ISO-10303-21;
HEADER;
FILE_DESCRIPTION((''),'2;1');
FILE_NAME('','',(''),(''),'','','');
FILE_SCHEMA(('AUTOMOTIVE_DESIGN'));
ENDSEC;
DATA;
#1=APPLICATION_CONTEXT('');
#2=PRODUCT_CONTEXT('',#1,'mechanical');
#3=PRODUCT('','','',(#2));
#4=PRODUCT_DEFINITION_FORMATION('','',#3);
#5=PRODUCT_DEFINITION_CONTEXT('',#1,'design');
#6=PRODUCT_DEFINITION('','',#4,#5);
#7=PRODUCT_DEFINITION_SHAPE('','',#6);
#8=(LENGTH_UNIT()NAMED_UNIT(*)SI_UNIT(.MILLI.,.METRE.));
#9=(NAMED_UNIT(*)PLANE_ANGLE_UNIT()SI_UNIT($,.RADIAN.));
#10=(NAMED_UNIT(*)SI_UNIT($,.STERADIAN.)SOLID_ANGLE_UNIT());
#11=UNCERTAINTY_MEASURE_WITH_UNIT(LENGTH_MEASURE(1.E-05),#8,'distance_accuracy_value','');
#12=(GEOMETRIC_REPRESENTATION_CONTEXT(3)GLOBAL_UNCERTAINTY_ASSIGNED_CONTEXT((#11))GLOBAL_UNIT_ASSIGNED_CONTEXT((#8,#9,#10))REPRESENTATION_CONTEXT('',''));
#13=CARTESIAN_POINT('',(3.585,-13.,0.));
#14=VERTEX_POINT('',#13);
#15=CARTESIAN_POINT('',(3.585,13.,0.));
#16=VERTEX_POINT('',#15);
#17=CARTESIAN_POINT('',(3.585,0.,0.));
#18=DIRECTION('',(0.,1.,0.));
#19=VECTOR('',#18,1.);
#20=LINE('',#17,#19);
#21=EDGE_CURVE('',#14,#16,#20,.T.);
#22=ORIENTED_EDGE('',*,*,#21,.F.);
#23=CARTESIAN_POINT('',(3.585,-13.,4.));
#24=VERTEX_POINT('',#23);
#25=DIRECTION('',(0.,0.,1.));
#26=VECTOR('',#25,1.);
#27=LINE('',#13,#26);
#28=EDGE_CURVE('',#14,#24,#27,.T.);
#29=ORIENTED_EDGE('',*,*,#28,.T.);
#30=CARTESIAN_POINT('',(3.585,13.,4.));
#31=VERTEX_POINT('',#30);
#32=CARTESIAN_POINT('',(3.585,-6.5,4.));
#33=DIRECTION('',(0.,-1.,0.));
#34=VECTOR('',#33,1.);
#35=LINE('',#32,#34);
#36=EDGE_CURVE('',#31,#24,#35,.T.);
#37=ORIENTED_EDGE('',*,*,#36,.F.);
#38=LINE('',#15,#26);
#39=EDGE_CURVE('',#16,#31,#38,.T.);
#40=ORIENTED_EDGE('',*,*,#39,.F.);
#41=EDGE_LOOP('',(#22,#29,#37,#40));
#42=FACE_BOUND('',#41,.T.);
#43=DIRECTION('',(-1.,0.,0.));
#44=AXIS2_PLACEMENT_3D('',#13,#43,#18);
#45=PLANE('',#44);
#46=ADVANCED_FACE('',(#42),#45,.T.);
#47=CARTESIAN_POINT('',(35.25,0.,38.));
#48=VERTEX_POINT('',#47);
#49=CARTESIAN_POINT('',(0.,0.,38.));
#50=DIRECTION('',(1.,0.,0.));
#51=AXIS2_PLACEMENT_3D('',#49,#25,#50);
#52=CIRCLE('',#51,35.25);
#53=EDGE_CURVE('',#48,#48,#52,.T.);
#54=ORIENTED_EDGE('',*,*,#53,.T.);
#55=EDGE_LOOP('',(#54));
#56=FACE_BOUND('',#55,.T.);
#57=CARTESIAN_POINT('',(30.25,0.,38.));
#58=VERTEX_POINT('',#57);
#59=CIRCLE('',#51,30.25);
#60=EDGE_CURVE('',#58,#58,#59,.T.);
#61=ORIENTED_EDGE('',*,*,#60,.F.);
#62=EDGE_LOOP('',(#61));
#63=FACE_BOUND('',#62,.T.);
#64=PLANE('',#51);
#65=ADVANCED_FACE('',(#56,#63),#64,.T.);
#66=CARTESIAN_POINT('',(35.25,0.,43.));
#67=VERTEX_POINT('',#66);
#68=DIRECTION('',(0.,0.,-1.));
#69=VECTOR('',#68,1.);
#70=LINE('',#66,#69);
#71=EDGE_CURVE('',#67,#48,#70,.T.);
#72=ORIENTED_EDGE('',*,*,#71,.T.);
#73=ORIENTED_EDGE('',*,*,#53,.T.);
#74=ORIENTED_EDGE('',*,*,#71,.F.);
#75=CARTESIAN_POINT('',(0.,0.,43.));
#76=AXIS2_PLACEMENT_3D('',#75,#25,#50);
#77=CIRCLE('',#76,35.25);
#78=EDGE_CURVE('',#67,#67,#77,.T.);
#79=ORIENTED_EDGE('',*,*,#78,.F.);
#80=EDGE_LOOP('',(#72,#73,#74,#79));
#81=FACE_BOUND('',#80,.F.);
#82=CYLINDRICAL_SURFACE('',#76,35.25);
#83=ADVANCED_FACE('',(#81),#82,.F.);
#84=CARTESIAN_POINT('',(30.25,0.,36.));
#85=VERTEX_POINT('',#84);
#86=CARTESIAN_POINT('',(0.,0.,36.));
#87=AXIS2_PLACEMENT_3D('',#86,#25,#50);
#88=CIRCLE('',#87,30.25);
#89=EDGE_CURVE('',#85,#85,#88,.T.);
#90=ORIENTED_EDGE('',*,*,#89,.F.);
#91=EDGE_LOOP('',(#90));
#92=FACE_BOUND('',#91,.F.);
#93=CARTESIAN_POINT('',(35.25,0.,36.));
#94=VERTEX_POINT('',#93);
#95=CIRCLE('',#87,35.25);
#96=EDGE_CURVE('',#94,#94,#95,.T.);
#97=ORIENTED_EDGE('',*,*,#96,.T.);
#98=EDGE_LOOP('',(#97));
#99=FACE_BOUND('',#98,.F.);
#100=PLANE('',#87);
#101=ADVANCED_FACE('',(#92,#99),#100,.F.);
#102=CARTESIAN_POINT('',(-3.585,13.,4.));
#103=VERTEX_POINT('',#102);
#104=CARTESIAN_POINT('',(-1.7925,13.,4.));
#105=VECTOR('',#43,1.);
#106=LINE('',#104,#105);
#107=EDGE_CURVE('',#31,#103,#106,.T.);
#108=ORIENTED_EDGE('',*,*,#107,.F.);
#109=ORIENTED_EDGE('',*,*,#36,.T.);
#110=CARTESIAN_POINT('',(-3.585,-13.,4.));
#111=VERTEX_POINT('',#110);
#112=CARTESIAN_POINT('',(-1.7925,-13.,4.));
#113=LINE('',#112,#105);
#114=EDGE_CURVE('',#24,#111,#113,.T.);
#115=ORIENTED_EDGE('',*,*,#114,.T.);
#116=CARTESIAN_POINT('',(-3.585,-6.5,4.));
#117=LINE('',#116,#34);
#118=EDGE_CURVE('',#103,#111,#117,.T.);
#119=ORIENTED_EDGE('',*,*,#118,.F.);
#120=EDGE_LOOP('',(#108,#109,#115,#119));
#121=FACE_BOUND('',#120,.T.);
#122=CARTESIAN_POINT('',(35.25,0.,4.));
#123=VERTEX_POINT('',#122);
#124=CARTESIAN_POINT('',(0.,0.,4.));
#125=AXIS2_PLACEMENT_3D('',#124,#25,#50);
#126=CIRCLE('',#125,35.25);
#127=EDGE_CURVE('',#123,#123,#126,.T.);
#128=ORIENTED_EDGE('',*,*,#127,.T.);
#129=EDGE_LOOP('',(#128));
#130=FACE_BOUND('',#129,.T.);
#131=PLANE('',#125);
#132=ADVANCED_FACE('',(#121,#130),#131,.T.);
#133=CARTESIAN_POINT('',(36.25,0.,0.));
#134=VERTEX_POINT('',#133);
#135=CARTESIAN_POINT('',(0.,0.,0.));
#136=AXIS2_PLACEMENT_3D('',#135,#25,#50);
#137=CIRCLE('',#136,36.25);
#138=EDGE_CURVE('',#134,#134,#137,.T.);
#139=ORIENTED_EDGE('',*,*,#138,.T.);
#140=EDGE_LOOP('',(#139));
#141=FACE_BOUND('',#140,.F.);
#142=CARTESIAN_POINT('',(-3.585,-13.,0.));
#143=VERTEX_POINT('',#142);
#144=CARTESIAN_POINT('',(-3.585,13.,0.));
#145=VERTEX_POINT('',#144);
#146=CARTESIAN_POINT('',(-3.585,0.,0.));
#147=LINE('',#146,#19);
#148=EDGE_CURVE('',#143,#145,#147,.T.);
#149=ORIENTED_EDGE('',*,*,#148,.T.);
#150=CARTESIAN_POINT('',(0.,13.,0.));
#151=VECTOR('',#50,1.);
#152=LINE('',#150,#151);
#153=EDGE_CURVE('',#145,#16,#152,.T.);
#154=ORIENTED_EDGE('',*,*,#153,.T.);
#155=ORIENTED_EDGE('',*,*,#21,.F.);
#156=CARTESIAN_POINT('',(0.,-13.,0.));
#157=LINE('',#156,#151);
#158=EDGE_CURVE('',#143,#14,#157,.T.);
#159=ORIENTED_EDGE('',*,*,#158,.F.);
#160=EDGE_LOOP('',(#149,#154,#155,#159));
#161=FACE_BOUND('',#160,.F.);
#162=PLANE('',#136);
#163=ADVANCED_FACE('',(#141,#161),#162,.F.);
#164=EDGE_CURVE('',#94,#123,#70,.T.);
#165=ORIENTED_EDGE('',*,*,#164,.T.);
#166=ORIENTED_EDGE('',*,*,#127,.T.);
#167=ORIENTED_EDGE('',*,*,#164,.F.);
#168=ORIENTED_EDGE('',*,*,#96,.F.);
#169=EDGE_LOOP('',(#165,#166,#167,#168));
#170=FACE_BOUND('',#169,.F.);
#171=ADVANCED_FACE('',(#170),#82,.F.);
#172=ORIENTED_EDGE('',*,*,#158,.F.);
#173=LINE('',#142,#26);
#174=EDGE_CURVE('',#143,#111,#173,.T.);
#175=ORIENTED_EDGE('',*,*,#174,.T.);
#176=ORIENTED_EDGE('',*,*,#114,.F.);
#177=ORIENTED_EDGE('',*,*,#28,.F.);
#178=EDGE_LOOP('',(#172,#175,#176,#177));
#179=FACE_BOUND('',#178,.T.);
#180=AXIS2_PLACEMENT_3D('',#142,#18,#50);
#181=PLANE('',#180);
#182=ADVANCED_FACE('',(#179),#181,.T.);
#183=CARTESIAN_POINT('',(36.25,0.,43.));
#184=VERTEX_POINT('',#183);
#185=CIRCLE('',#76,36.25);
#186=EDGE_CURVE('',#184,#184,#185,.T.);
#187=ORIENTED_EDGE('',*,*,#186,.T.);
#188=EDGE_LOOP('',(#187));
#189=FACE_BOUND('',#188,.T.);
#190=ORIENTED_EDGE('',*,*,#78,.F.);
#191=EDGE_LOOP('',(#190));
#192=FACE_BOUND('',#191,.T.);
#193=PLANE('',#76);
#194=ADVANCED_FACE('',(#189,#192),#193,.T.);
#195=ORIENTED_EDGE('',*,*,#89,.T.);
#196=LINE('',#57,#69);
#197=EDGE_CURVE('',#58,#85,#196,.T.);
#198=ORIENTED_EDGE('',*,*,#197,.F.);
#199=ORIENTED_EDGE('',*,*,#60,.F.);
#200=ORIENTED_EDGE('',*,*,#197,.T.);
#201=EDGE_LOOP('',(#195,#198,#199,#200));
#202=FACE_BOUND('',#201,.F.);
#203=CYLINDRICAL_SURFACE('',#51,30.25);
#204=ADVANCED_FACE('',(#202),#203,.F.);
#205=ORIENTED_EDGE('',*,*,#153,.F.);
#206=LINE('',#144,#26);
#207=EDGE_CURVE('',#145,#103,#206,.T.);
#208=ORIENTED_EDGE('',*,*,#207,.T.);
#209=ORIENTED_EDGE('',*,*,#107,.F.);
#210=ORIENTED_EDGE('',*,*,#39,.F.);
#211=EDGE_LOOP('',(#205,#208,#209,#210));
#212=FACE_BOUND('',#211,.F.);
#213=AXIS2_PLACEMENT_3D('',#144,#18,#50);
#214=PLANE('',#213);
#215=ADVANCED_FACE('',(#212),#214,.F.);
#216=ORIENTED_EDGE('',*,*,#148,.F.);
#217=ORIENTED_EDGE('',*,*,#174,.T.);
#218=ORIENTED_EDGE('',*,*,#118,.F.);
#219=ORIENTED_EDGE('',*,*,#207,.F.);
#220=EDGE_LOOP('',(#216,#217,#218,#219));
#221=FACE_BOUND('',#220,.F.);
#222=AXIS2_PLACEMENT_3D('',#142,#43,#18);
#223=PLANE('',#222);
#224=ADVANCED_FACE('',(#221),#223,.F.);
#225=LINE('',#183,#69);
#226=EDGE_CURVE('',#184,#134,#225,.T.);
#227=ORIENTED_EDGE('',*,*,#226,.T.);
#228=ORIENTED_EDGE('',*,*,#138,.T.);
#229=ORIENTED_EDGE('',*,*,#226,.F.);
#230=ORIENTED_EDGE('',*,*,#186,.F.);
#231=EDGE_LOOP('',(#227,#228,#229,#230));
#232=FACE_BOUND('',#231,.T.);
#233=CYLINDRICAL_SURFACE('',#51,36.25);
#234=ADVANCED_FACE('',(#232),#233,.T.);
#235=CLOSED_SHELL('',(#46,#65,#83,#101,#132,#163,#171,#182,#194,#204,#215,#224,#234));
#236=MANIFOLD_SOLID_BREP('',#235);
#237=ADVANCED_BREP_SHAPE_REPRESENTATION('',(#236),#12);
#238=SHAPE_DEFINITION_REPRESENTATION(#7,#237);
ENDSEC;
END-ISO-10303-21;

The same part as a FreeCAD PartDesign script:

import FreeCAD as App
import Part
import Sketcher
Q = App.Units.Quantity

doc = App.newDocument("Part")
body = doc.addObject("PartDesign::Body", "Body")

sketch1 = doc.addObject("Sketcher::SketchObject", "Sketch")
body.addObject(sketch1)
sketch1.AttachmentSupport = (doc.XY_Plane, [""])
sketch1.MapMode = "FlatFace"
sketch1.addGeometry(Part.Circle(App.Vector(0, 0, 0), App.Vector(0, 0, 1), 36), False)
sketch1.addConstraint([
    Sketcher.Constraint("Coincident", 0, 3, -1, 1),
    Sketcher.Constraint("Diameter", 0, Q("72.5 mm")),
])
pad1 = doc.addObject("PartDesign::Pad", "Pad")
body.addObject(pad1)
pad1.Profile = sketch1
pad1.Length = 43

sketch2 = doc.addObject("Sketcher::SketchObject", "Sketch001")
body.addObject(sketch2)
sketch2.AttachmentSupport = (doc.XY_Plane, [""])
sketch2.MapMode = "FlatFace"
sketch2.AttachmentOffset = App.Placement(App.Vector(0, 0, 43), App.Rotation())
sketch2.addGeometry(Part.Circle(App.Vector(0, 0, 0), App.Vector(0, 0, 1), 35), False)
sketch2.addConstraint([
    Sketcher.Constraint("Coincident", 0, 3, -1, 1),
    Sketcher.Constraint("Diameter", 0, Q("70.5 mm")),
])
pocket1 = doc.addObject("PartDesign::Pocket", "Pocket")
body.addObject(pocket1)
pocket1.Profile = sketch2
pocket1.Length = 39

sketch3 = doc.addObject("Sketcher::SketchObject", "Sketch002")
body.addObject(sketch3)
sketch3.AttachmentSupport = (doc.XY_Plane, [""])
sketch3.MapMode = "FlatFace"
sketch3.AttachmentOffset = App.Placement(App.Vector(0, 0, 38), App.Rotation())
sketch3.addGeometry([
    Part.Circle(App.Vector(0, 0, 0), App.Vector(0, 0, 1), 36),
    Part.Circle(App.Vector(0, 0, 0), App.Vector(0, 0, 1), 30),
], False)
sketch3.addConstraint([
    Sketcher.Constraint("Coincident", 0, 3, -1, 1),
    Sketcher.Constraint("Coincident", 1, 3, -1, 1),
    Sketcher.Constraint("Diameter", 0, Q("72.5 mm")),
    Sketcher.Constraint("Diameter", 1, Q("60.5 mm")),
])
pad2 = doc.addObject("PartDesign::Pad", "Pad001")
body.addObject(pad2)
pad2.Profile = sketch3
pad2.Length = 2
pad2.Reversed = True

sketch4 = doc.addObject("Sketcher::SketchObject", "Sketch003")
body.addObject(sketch4)
sketch4.AttachmentSupport = (doc.XY_Plane, [""])
sketch4.MapMode = "FlatFace"
sketch4.addGeometry([
    Part.LineSegment(App.Vector(-4, 13, 0), App.Vector(-4, -13, 0)),
    Part.LineSegment(App.Vector(-4, -13, 0), App.Vector(4, -13, 0)),
    Part.LineSegment(App.Vector(4, -13, 0), App.Vector(4, 13, 0)),
    Part.LineSegment(App.Vector(4, 13, 0), App.Vector(-4, 13, 0)),
], False)
sketch4.addConstraint([
    Sketcher.Constraint("Coincident", 0, 2, 1, 1),
    Sketcher.Constraint("Coincident", 1, 2, 2, 1),
    Sketcher.Constraint("Coincident", 2, 2, 3, 1),
    Sketcher.Constraint("Coincident", 3, 2, 0, 1),
    Sketcher.Constraint("Vertical", 0),
    Sketcher.Constraint("Horizontal", 1),
    Sketcher.Constraint("Vertical", 2),
    Sketcher.Constraint("Horizontal", 3),
    Sketcher.Constraint("Symmetric", 0, 2, 2, 2, -1, 1),
    Sketcher.Constraint("DistanceY", 0, 2, 0, 1, Q("26 mm")),
    Sketcher.Constraint("DistanceX", 1, 1, 1, 2, Q("7.17 mm")),
])
pocket2 = doc.addObject("PartDesign::Pocket", "Pocket001")
body.addObject(pocket2)
pocket2.Profile = sketch4
pocket2.Type = "ThroughAll"
pocket2.Reversed = True

doc.recompute()
